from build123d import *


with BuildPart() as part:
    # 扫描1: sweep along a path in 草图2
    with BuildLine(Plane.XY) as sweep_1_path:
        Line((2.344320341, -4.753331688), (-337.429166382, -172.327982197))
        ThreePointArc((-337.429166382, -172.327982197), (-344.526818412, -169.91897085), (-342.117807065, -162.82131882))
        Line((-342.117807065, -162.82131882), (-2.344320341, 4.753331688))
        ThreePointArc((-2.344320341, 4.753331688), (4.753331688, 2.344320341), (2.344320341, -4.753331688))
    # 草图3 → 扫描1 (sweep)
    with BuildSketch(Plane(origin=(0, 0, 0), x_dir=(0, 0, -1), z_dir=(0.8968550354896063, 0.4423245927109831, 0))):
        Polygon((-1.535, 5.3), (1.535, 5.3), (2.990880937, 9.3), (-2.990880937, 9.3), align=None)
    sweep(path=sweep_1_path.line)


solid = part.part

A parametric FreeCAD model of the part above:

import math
import FreeCAD as App
import Part
import Sketcher
Q = App.Units.Quantity


def add_polygon(sketch, points):
    """Adds a closed chain of lines whose ends are joined by coincident constraints."""
    first, n = sketch.GeometryCount, len(points)
    for a, b in zip(points, points[1:] + points[:1]):
        sketch.addGeometry(Part.LineSegment(App.Vector(*a, 0), App.Vector(*b, 0)), False)
    for i in range(n):
        sketch.addConstraint(Sketcher.Constraint("Coincident", first + i, 2, first + (i + 1) % n, 1))

doc = App.newDocument("Part")
body = doc.addObject("PartDesign::Body", "Body")

sketch1 = body.newObject("Sketcher::SketchObject", "Sketch")
sketch1.Placement = App.Placement(App.Vector(0, 0, 0), App.Rotation(App.Vector(0, 0, -1), App.Vector(-0.442324593, 0.896855035, 0), App.Vector(0.896855035, 0.442324593, 0), "ZXY"))
add_polygon(sketch1, [(-1.5, 5.3), (1.5, 5.3), (3, 9.3), (-3, 9.3)])
sketch1.addConstraint(Sketcher.Constraint("Horizontal", 0))
sketch1.addConstraint(Sketcher.Constraint("Horizontal", 2))
sketch1.addConstraint(Sketcher.Constraint("Equal", 1, 3))
sketch1.addConstraint(Sketcher.Constraint("Angle", 1, Q("70 deg")))
sketch1.addConstraint(Sketcher.Constraint("DistanceY", 0, 2, 1, 2, Q("4 mm")))
sketch1.addConstraint(Sketcher.Constraint("DistanceX", 0, 1, 0, 2, Q("3.07 mm")))
sketch1.addConstraint(Sketcher.Constraint("DistanceY", -1, 1, 0, 2, Q("5.3 mm")))
sketch1.addConstraint(Sketcher.Constraint("DistanceX", -1, 1, 0, 2, Q("1.535 mm")))

sketch2 = body.newObject("Sketcher::SketchObject", "Sketch001")
sketch2.AttachmentSupport = (doc.getObject("XY_Plane"), [""])
sketch2.MapMode = "FlatFace"
sketch2.addGeometry(Part.LineSegment(App.Vector(2, -5, 0), App.Vector(-337, -172, 0)), False)
sketch2.addGeometry(Part.ArcOfCircle(Part.Circle(App.Vector(-340, -168, 0), App.Vector(0, 0, 1), 5), math.radians(116), math.radians(296)), False)
sketch2.addGeometry(Part.LineSegment(App.Vector(-342, -163, 0), App.Vector(-2, 5, 0)), False)
sketch2.addGeometry(Part.ArcOfCircle(Part.Circle(App.Vector(0, 0, 0), App.Vector(0, 0, 1), 5), math.radians(-64), math.radians(116)), False)
sketch2.addConstraint(Sketcher.Constraint("Tangent", 0, 2, 1, 2))
sketch2.addConstraint(Sketcher.Constraint("Tangent", 1, 1, 2, 1))
sketch2.addConstraint(Sketcher.Constraint("Tangent", 2, 2, 3, 2))
sketch2.addConstraint(Sketcher.Constraint("Tangent", 3, 1, 0, 1))
sketch2.addConstraint(Sketcher.Constraint("Coincident", 3, 3, -1, 1))
sketch2.addConstraint(Sketcher.Constraint("Equal", 1, 3))
sketch2.addConstraint(Sketcher.Constraint("Radius", 1, Q("5.3 mm")))
sketch2.addConstraint(Sketcher.Constraint("Distance", 0, Q("378.849952 mm")))
sketch2.addConstraint(Sketcher.Constraint("DistanceY", 1, 3, -1, 1, Q("167.574651 mm")))
doc.recompute()

additivepipe = body.newObject("PartDesign::AdditivePipe", "AdditivePipe")
additivepipe.Profile = sketch1
additivepipe.Spine = (sketch2, ["Edge1", "Edge2", "Edge3", "Edge4"])

doc.recompute()
